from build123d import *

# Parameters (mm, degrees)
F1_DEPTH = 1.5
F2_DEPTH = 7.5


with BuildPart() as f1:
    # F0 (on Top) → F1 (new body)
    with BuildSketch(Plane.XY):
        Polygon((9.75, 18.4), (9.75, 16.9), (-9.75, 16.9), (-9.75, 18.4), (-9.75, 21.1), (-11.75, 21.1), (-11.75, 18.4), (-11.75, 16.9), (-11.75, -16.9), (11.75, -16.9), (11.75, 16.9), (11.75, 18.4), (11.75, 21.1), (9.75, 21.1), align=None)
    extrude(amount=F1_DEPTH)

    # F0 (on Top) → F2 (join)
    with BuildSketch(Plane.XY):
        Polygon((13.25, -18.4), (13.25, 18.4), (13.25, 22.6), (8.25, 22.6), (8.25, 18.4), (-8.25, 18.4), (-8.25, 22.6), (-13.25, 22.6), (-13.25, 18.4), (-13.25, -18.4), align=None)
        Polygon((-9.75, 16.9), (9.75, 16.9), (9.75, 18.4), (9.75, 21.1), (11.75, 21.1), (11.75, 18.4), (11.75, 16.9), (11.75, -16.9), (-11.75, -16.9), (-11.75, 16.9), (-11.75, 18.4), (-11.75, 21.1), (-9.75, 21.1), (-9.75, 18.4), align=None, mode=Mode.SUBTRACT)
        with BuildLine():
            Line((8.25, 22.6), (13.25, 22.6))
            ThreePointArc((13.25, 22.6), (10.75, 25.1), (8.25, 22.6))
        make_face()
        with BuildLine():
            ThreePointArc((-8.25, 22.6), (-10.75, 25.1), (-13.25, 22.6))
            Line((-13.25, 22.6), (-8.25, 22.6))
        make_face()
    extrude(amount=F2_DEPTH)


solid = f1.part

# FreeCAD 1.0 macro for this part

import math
import FreeCAD as App
import Part
import Sketcher
from FreeCAD import Vector

doc = App.newDocument("Part")
params = doc.addObject("Spreadsheet::Sheet", "Params")
for row, (alias, value) in enumerate([
    ("sketch1_width", "2 mm"),
    ("sketch1_height", "38 mm"),
    ("sketch1_width2", "19.5 mm"),
    ("sketch1_height2", "4.2 mm"),
    ("pad1_length", "1.5 mm"),
    ("sketch2_radius", "2.5 mm"),
    ("sketch2_width", "2 mm"),
    ("sketch2_height", "41 mm"),
    ("sketch2_height2", "38 mm"),
    ("sketch2_width2", "16.5 mm"),
    ("pad2_length", "7.5 mm"),
], start=1):
    params.set(f"A{row}", alias)
    params.set(f"B{row}", "=" + value)
    params.setAlias(f"B{row}", alias)

body = doc.addObject("PartDesign::Body", "Body")

# Sketch on XY plane
sketch1 = doc.addObject("Sketcher::SketchObject", "Sketch")
body.addObject(sketch1)
sketch1.AttachmentSupport = (doc.XY_Plane, [""])
sketch1.MapMode = "FlatFace"
sketch1.addGeometry([
    Part.LineSegment(Vector(9.8, 16.9, 0), Vector(-9.8, 16.9, 0)),  # 0
    Part.LineSegment(Vector(-9.8, 16.9, 0), Vector(-9.8, 21.1, 0)),  # 1
    Part.LineSegment(Vector(-9.8, 21.1, 0), Vector(-11.8, 21.1, 0)),  # 2
    Part.LineSegment(Vector(-11.8, 21.1, 0), Vector(-11.8, -16.9, 0)),  # 3
    Part.LineSegment(Vector(-11.8, -16.9, 0), Vector(11.8, -16.9, 0)),  # 4
    Part.LineSegment(Vector(11.8, -16.9, 0), Vector(11.8, 21.1, 0)),  # 5
    Part.LineSegment(Vector(11.8, 21.1, 0), Vector(9.8, 21.1, 0)),  # 6
    Part.LineSegment(Vector(9.8, 21.1, 0), Vector(9.8, 16.9, 0)),  # 7
], False)
sketch1.addConstraint([
    Sketcher.Constraint("Coincident", 0, 2, 1, 1),
    Sketcher.Constraint("Coincident", 1, 2, 2, 1),
    Sketcher.Constraint("Coincident", 2, 2, 3, 1),
    Sketcher.Constraint("Coincident", 3, 2, 4, 1),
    Sketcher.Constraint("Coincident", 4, 2, 5, 1),
    Sketcher.Constraint("Coincident", 5, 2, 6, 1),
    Sketcher.Constraint("Coincident", 6, 2, 7, 1),
    Sketcher.Constraint("Coincident", 7, 2, 0, 1),
    Sketcher.Constraint("Horizontal", 0),
    Sketcher.Constraint("Vertical", 1),
    Sketcher.Constraint("Horizontal", 2),
    Sketcher.Constraint("Vertical", 3),
    Sketcher.Constraint("Horizontal", 4),
    Sketcher.Constraint("Vertical", 5),
    Sketcher.Constraint("Horizontal", 6),
    Sketcher.Constraint("Vertical", 7),
    Sketcher.Constraint("Symmetric", 2, 2, 5, 2, -2),
    Sketcher.Constraint("Equal", 2, 6),
    Sketcher.Constraint("DistanceX", 2, 2, 2, 1, 2.0),
    Sketcher.Constraint("DistanceY", 3, 2, 3, 1, 38.0),
    Sketcher.Constraint("DistanceX", 0, 2, 0, 1, 19.5),
    Sketcher.Constraint("DistanceY", 1, 1, 1, 2, 4.2),
    Sketcher.Constraint("DistanceY", -1, 1, 0, 2, 16.9),
])
sketch1.setExpression("Constraints[18]", "Params.sketch1_width")
sketch1.setExpression("Constraints[19]", "Params.sketch1_height")
sketch1.setExpression("Constraints[20]", "Params.sketch1_width2")
sketch1.setExpression("Constraints[21]", "Params.sketch1_height2")
pad1 = doc.addObject("PartDesign::Pad", "Pad")
body.addObject(pad1)
pad1.Profile = sketch1
pad1.setExpression("Length", "Params.pad1_length")

# Sketch on XY plane
sketch2 = doc.addObject("Sketcher::SketchObject", "Sketch001")
body.addObject(sketch2)
sketch2.AttachmentSupport = (doc.XY_Plane, [""])
sketch2.MapMode = "FlatFace"
sketch2.addGeometry([
    Part.LineSegment(Vector(13.2, -18.4, 0), Vector(13.2, 22.6, 0)),  # 0
    Part.ArcOfCircle(Part.Circle(Vector(10.8, 22.6, 0), Vector(0, 0, 1), 2.5), math.radians(0), math.radians(180)),  # 1
    Part.LineSegment(Vector(8.2, 22.6, 0), Vector(8.2, 18.4, 0)),  # 2
    Part.LineSegment(Vector(8.2, 18.4, 0), Vector(-8.2, 18.4, 0)),  # 3
    Part.LineSegment(Vector(-8.2, 18.4, 0), Vector(-8.2, 22.6, 0)),  # 4
    Part.ArcOfCircle(Part.Circle(Vector(-10.8, 22.6, 0), Vector(0, 0, 1), 2.5), math.radians(0), math.radians(180)),  # 5
    Part.LineSegment(Vector(-13.2, 22.6, 0), Vector(-13.2, -18.4, 0)),  # 6
    Part.LineSegment(Vector(-13.2, -18.4, 0), Vector(13.2, -18.4, 0)),  # 7
    Part.LineSegment(Vector(-9.8, 21.1, 0), Vector(-9.8, 16.9, 0)),  # 8
    Part.LineSegment(Vector(-9.8, 16.9, 0), Vector(9.8, 16.9, 0)),  # 9
    Part.LineSegment(Vector(9.8, 16.9, 0), Vector(9.8, 21.1, 0)),  # 10
    Part.LineSegment(Vector(9.8, 21.1, 0), Vector(11.8, 21.1, 0)),  # 11
    Part.LineSegment(Vector(11.8, 21.1, 0), Vector(11.8, -16.9, 0)),  # 12
    Part.LineSegment(Vector(11.8, -16.9, 0), Vector(-11.8, -16.9, 0)),  # 13
    Part.LineSegment(Vector(-11.8, -16.9, 0), Vector(-11.8, 21.1, 0)),  # 14
    Part.LineSegment(Vector(-11.8, 21.1, 0), Vector(-9.8, 21.1, 0)),  # 15
], False)
sketch2.addConstraint([
    Sketcher.Constraint("Tangent", 0, 2, 1, 1),
    Sketcher.Constraint("Tangent", 1, 2, 2, 1),
    Sketcher.Constraint("Coincident", 2, 2, 3, 1),
    Sketcher.Constraint("Coincident", 3, 2, 4, 1),
    Sketcher.Constraint("Tangent", 4, 2, 5, 1),
    Sketcher.Constraint("Tangent", 5, 2, 6, 1),
    Sketcher.Constraint("Coincident", 6, 2, 7, 1),
    Sketcher.Constraint("Coincident", 7, 2, 0, 1),
    Sketcher.Constraint("Coincident", 8, 2, 9, 1),
    Sketcher.Constraint("Coincident", 9, 2, 10, 1),
    Sketcher.Constraint("Coincident", 10, 2, 11, 1),
    Sketcher.Constraint("Coincident", 11, 2, 12, 1),
    Sketcher.Constraint("Coincident", 12, 2, 13, 1),
    Sketcher.Constraint("Coincident", 13, 2, 14, 1),
    Sketcher.Constraint("Coincident", 14, 2, 15, 1),
    Sketcher.Constraint("Coincident", 15, 2, 8, 1),
    Sketcher.Constraint("Vertical", 0),
    Sketcher.Constraint("Vertical", 2),
    Sketcher.Constraint("Horizontal", 3),
    Sketcher.Constraint("Vertical", 4),
    Sketcher.Constraint("Vertical", 6),
    Sketcher.Constraint("Horizontal", 7),
    Sketcher.Constraint("Vertical", 8),
    Sketcher.Constraint("Horizontal", 9),
    Sketcher.Constraint("Vertical", 10),
    Sketcher.Constraint("Horizontal", 11),
    Sketcher.Constraint("Vertical", 12),
    Sketcher.Constraint("Horizontal", 13),
    Sketcher.Constraint("Vertical", 14),
    Sketcher.Constraint("Horizontal", 15),
    Sketcher.Constraint("Equal", 1, 5),
    Sketcher.Constraint("Symmetric", 1, 3, 5, 3, -2),
    Sketcher.Constraint("Symmetric", 11, 2, 14, 2, -2),
    Sketcher.Constraint("Equal", 11, 15),
    Sketcher.Constraint("Equal", 4, 8),
    Sketcher.Constraint("Radius", 1, 2.5),
    Sketcher.Constraint("DistanceX", 11, 1, 11, 2, 2.0),
    Sketcher.Constraint("DistanceY", 0, 1, 0, 2, 41.0),
    Sketcher.Constraint("DistanceY", 12, 2, 12, 1, 38.0),
    Sketcher.Constraint("DistanceX", 3, 2, 3, 1, 16.5),
    Sketcher.Constraint("DistanceX", 9, 1, 9, 2, 19.5),
    Sketcher.Constraint("DistanceY", 2, 2, 2, 1, 4.2),
    Sketcher.Constraint("DistanceY", -1, 1, 1, 3, 22.6),
    Sketcher.Constraint("DistanceY", -1, 1, 8, 2, 16.9),
])
sketch2.setExpression("Constraints[35]", "Params.sketch2_radius")
sketch2.setExpression("Constraints[36]", "Params.sketch2_width")
sketch2.setExpression("Constraints[37]", "Params.sketch2_height")
sketch2.setExpression("Constraints[38]", "Params.sketch2_height2")
sketch2.setExpression("Constraints[39]", "Params.sketch2_width2")
pad2 = doc.addObject("PartDesign::Pad", "Pad001")
body.addObject(pad2)
pad2.Profile = sketch2
pad2.setExpression("Length", "Params.pad2_length")

doc.recompute()
